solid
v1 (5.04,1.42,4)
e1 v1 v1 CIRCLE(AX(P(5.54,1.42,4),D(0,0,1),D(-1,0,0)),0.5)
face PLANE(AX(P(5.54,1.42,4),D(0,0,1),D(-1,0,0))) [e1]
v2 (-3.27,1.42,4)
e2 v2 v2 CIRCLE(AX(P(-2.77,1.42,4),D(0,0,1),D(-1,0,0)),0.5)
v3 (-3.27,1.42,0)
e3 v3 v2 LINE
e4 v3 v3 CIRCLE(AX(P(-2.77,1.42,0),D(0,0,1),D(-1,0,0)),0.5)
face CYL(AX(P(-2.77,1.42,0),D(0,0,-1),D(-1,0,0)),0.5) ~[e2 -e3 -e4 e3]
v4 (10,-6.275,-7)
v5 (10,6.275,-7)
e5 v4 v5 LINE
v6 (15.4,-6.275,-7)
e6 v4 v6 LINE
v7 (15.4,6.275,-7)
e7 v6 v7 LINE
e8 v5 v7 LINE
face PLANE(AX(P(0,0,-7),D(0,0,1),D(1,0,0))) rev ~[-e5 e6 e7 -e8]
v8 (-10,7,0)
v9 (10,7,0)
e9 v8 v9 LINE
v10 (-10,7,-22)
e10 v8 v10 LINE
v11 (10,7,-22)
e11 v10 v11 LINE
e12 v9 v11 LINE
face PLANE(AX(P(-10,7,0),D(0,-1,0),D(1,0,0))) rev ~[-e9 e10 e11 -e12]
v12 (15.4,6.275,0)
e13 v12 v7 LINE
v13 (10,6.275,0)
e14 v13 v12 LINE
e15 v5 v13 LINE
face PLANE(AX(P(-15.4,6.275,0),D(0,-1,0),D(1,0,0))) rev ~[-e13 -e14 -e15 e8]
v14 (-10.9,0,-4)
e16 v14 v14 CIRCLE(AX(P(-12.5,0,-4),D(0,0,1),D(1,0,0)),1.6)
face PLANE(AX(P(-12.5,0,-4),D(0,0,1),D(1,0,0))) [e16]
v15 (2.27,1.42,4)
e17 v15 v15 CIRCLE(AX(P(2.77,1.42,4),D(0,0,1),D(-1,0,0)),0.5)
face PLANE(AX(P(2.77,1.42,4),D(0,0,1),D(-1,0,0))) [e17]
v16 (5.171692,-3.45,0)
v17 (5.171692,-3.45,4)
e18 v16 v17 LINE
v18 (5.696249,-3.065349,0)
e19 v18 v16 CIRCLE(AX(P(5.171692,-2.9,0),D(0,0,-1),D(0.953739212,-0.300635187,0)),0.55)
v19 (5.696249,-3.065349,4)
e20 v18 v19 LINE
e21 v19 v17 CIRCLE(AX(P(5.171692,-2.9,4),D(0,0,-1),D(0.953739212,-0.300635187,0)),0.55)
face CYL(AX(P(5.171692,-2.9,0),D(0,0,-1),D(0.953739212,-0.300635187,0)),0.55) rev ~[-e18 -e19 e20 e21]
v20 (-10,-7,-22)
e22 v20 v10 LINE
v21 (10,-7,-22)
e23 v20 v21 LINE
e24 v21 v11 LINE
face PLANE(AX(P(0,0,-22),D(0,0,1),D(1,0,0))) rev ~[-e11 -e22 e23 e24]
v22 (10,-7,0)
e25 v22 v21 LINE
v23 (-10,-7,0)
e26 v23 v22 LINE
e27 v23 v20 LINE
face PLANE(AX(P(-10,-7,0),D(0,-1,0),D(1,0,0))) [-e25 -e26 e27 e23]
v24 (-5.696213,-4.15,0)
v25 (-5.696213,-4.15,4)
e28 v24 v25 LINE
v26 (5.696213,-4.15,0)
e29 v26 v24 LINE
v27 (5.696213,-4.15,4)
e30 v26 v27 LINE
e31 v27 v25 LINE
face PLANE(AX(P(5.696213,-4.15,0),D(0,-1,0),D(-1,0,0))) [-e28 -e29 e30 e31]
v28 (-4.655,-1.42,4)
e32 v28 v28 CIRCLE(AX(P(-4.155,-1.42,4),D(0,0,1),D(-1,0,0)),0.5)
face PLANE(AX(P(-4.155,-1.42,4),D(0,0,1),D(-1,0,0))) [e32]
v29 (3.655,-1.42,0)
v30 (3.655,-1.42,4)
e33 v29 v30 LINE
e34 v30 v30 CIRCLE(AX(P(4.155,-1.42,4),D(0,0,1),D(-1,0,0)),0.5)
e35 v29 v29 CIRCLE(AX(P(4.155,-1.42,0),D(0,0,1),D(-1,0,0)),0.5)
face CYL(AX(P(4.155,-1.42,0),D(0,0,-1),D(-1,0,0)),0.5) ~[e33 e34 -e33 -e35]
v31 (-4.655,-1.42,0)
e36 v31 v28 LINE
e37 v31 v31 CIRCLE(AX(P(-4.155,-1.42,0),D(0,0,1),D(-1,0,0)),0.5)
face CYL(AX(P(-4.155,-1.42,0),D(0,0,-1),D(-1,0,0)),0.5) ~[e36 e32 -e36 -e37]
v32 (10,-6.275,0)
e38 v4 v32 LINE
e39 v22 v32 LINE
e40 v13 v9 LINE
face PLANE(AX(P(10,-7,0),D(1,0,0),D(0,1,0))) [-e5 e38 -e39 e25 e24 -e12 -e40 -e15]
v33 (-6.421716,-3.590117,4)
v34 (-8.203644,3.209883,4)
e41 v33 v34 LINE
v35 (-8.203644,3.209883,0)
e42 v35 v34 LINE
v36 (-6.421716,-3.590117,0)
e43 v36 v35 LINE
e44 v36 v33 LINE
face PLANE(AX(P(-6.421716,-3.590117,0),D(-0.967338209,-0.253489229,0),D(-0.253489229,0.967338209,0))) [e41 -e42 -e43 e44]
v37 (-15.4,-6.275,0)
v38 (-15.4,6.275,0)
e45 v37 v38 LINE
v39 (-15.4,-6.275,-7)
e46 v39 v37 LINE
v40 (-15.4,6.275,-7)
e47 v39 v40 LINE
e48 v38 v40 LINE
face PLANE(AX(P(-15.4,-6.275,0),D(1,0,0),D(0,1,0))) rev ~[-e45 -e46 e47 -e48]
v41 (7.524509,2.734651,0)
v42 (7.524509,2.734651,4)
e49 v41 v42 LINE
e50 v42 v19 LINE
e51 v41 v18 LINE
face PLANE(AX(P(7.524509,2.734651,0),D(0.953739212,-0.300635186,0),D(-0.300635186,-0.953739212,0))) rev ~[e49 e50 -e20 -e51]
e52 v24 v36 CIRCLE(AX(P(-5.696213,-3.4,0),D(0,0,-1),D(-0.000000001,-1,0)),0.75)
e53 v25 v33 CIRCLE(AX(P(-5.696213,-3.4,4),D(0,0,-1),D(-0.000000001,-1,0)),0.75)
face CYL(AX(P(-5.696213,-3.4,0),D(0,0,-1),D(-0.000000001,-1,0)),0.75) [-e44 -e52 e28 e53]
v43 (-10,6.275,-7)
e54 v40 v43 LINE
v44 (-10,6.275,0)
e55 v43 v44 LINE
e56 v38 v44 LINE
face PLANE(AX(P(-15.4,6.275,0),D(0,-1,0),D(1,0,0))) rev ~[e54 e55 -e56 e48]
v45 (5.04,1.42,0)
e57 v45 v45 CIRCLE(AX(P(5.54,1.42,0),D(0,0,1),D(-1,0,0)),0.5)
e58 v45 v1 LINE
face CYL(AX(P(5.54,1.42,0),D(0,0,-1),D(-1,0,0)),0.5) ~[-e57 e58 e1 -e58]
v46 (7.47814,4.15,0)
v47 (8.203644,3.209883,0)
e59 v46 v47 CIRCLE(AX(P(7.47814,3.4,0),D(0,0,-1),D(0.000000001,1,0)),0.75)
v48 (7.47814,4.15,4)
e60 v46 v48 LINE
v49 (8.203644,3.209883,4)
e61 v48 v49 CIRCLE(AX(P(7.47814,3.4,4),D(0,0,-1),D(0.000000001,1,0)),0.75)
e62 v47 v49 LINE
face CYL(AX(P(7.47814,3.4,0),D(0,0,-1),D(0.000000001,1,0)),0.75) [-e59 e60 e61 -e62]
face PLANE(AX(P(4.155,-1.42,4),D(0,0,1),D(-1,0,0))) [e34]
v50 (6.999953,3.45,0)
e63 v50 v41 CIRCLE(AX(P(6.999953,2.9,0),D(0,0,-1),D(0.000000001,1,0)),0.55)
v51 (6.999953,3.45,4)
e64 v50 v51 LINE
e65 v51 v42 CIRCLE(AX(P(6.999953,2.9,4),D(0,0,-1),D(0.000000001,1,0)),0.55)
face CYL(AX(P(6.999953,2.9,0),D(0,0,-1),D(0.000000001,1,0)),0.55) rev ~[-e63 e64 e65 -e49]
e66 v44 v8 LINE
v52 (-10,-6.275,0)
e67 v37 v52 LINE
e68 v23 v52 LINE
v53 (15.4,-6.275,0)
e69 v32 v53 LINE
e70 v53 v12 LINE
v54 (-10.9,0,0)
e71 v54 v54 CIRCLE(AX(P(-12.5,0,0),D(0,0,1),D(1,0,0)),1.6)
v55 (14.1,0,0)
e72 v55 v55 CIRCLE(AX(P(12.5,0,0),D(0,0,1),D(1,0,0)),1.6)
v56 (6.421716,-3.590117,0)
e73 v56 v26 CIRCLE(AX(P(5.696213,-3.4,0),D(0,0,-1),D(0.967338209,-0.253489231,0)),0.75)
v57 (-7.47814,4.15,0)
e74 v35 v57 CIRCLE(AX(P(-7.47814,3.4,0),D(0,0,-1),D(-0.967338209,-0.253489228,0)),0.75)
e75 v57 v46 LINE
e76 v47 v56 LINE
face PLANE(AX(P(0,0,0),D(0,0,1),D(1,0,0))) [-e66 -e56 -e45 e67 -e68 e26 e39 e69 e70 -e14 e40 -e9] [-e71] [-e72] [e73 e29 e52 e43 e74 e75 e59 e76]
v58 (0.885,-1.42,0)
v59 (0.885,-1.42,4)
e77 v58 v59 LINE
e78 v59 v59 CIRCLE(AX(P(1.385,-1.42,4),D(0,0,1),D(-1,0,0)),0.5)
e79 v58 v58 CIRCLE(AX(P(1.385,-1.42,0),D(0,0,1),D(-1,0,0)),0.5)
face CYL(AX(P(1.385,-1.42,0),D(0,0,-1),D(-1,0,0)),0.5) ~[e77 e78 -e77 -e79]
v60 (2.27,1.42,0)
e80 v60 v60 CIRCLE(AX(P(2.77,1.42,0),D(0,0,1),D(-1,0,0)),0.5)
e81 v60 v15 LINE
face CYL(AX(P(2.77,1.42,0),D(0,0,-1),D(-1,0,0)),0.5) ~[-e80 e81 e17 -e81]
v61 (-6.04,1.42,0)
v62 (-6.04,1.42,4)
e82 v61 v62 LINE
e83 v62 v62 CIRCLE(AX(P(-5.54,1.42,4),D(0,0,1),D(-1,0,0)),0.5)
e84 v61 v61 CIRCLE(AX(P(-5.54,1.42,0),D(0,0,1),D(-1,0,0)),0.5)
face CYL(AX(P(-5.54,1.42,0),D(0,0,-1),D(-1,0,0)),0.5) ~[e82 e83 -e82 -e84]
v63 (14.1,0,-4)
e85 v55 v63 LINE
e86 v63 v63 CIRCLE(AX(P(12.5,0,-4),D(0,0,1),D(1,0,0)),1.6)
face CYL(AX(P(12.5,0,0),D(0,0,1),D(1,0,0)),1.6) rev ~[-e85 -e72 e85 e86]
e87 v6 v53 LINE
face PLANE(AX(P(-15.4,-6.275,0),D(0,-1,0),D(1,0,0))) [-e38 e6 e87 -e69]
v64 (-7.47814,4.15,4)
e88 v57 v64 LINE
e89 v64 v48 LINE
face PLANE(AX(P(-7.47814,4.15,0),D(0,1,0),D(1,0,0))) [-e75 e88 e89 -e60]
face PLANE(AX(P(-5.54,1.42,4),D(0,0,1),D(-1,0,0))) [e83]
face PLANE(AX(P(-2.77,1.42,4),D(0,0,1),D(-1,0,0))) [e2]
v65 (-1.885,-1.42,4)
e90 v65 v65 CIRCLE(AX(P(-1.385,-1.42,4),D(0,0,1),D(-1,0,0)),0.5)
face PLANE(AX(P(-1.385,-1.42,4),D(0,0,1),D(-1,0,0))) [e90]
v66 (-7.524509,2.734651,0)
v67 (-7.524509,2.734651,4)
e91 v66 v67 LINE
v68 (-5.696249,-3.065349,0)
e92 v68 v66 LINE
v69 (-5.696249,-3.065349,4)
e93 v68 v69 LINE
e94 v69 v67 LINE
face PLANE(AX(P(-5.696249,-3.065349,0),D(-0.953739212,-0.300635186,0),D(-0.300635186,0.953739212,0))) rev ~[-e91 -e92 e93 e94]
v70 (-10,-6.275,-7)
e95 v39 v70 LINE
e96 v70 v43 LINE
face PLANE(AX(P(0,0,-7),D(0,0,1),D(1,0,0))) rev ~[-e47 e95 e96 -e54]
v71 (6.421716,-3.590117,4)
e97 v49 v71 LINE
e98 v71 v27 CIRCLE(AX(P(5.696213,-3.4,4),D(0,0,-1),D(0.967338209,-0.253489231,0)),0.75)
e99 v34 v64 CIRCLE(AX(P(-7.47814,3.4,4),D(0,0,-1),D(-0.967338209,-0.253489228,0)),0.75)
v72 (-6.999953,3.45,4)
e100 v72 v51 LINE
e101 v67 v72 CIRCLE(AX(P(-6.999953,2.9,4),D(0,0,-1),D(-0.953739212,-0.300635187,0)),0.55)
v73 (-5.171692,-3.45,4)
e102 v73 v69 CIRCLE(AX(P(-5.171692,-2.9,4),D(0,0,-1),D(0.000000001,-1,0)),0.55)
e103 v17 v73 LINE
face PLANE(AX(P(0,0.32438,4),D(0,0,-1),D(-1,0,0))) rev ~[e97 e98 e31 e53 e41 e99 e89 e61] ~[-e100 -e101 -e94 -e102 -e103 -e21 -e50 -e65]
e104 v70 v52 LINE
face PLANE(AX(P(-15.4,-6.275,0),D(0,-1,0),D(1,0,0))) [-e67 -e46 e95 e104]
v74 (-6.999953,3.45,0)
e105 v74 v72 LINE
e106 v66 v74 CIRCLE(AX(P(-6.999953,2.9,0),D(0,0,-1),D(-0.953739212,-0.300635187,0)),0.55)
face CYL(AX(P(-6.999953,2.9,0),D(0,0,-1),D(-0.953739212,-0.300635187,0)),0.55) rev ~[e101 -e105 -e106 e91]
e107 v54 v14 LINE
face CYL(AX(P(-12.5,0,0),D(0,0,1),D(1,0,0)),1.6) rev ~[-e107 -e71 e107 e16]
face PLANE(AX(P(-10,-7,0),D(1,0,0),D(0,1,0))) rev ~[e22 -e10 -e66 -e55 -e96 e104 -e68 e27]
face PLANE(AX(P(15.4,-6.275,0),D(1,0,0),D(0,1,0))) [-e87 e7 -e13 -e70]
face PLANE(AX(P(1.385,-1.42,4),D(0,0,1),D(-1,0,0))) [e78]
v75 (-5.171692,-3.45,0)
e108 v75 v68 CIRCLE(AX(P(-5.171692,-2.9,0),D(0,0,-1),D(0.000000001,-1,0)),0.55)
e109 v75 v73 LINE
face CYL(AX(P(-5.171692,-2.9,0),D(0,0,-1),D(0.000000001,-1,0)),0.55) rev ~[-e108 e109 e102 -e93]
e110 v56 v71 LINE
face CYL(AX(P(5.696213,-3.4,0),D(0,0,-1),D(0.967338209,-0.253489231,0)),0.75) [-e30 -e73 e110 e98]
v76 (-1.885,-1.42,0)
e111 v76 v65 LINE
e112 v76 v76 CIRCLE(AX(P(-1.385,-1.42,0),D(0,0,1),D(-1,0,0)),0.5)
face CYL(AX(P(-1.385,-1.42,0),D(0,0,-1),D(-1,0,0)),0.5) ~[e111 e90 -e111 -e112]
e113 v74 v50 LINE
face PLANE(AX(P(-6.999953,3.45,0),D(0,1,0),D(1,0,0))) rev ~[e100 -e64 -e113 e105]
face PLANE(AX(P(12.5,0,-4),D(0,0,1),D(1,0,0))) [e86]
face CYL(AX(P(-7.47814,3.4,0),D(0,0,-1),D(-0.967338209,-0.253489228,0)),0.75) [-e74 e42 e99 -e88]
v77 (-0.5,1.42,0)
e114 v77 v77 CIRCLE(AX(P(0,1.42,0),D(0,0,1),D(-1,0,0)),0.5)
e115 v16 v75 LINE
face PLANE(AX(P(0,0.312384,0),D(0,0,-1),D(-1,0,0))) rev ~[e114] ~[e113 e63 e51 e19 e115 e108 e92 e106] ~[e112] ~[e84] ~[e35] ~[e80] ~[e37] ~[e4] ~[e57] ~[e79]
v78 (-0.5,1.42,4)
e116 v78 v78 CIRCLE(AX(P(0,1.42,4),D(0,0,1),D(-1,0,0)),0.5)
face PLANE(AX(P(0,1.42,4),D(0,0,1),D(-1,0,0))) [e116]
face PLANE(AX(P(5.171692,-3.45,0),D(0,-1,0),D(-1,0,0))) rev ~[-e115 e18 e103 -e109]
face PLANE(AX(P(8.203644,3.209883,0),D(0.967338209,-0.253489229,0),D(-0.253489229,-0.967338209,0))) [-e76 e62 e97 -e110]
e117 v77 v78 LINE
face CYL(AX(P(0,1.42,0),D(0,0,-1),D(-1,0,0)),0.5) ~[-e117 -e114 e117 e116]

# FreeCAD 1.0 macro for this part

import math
import FreeCAD as App
import Part
import Sketcher
from FreeCAD import Vector


def add_polygon(sketch, points):
    """Adds a closed chain of lines whose ends are joined by coincident constraints."""
    first, n = sketch.GeometryCount, len(points)
    for a, b in zip(points, points[1:] + points[:1]):
        sketch.addGeometry(Part.LineSegment(App.Vector(*a, 0), App.Vector(*b, 0)), False)
    for i in range(n):
        sketch.addConstraint(Sketcher.Constraint("Coincident", first + i, 2, first + (i + 1) % n, 1))

doc = App.newDocument("Part")
body = doc.addObject("PartDesign::Body", "Body")

# Sketch on XY plane
sketch1 = body.newObject("Sketcher::SketchObject", "Sketch")
sketch1.AttachmentSupport = (doc.getObject("XY_Plane"), [""])
sketch1.MapMode = "FlatFace"
add_polygon(sketch1, [(-15, 6), (-15, -6), (15, -6), (15, 6)])  # lines 0-3
sketch1.addConstraint([
    Sketcher.Constraint("Vertical", 0),
    Sketcher.Constraint("Horizontal", 1),
    Sketcher.Constraint("Vertical", 2),
    Sketcher.Constraint("Horizontal", 3),
    Sketcher.Constraint("Symmetric", 0, 2, 2, 2, -1, 1),
    Sketcher.Constraint("DistanceX", 1, 1, 1, 2, 30.8),
    Sketcher.Constraint("DistanceY", 0, 2, 0, 1, 12.55),
])
pad1 = body.newObject("PartDesign::Pad", "Pad")
pad1.Profile = sketch1
pad1.Length = 0.6
pad1.Reversed = True

# Sketch on XY plane
sketch2 = body.newObject("Sketcher::SketchObject", "Sketch001")
sketch2.AttachmentSupport = (doc.getObject("XY_Plane"), [""])
sketch2.MapMode = "FlatFace"
add_polygon(sketch2, [(-15, 6), (-15, -6), (15, -6), (15, 6)])  # lines 0-3
sketch2.addConstraint([
    Sketcher.Constraint("Vertical", 0),
    Sketcher.Constraint("Horizontal", 1),
    Sketcher.Constraint("Vertical", 2),
    Sketcher.Constraint("Horizontal", 3),
    Sketcher.Constraint("Symmetric", 0, 2, 2, 2, -1, 1),
    Sketcher.Constraint("DistanceX", 1, 1, 1, 2, 30.8),
    Sketcher.Constraint("DistanceY", 0, 2, 0, 1, 12.55),
])
pad2 = body.newObject("PartDesign::Pad", "Pad001")
pad2.Profile = sketch2
pad2.Length = 7
pad2.Reversed = True

# Sketch on XY plane
sketch3 = body.newObject("Sketcher::SketchObject", "Sketch002")
sketch3.AttachmentSupport = (doc.getObject("XY_Plane"), [""])
sketch3.MapMode = "FlatFace"
add_polygon(sketch3, [(-10, 7), (-10, -7), (10, -7), (10, 7)])  # lines 0-3
sketch3.addConstraint([
    Sketcher.Constraint("Vertical", 0),
    Sketcher.Constraint("Horizontal", 1),
    Sketcher.Constraint("Vertical", 2),
    Sketcher.Constraint("Horizontal", 3),
    Sketcher.Constraint("Symmetric", 0, 2, 2, 2, -1, 1),
    Sketcher.Constraint("DistanceX", 1, 1, 1, 2, 20.0),
    Sketcher.Constraint("DistanceY", 0, 2, 0, 1, 14.0),
])
pad3 = body.newObject("PartDesign::Pad", "Pad002")
pad3.Profile = sketch3
pad3.Length = 22
pad3.Reversed = True

# Sketch on XY plane
sketch4 = body.newObject("Sketcher::SketchObject", "Sketch003")
sketch4.AttachmentSupport = (doc.getObject("XY_Plane"), [""])
sketch4.MapMode = "FlatFace"
sketch4.addGeometry([
    Part.Circle(Vector(-12.5, 0, 0), Vector(0, 0, 1), 2.5),
    Part.Circle(Vector(12.5, 0, 0), Vector(0, 0, 1), 2.5),
], False)
sketch4.addConstraint([
    Sketcher.Constraint("Equal", 0, 1),
    Sketcher.Constraint("Symmetric", 0, 3, 1, 3, -1, 1),
    Sketcher.Constraint("PointOnObject", 0, 3, -1),
    Sketcher.Constraint("Diameter", 0, 5.0),
    Sketcher.Constraint("DistanceX", 0, 3, 1, 3, 25.0),
])
pad4 = body.newObject("PartDesign::Pad", "Pad003")
pad4.Profile = sketch4
pad4.Length = 3.5
pad4.Reversed = True

# Sketch on XY plane
sketch5 = body.newObject("Sketcher::SketchObject", "Sketch004")
sketch5.AttachmentSupport = (doc.getObject("XY_Plane"), [""])
sketch5.MapMode = "FlatFace"
sketch5.addGeometry([
    Part.LineSegment(Vector(7.5, 4.2, 0), Vector(-7.5, 4.2, 0)),  # 0
    Part.ArcOfCircle(Part.Circle(Vector(-7.5, 3.4, 0), Vector(0, 0, 1), 0.8), math.radians(90), math.radians(195)),  # 1
    Part.LineSegment(Vector(-8.2, 3.2, 0), Vector(-6.4, -3.6, 0)),  # 2
    Part.ArcOfCircle(Part.Circle(Vector(-5.7, -3.4, 0), Vector(0, 0, 1), 0.8), math.radians(-165), math.radians(-90)),  # 3
    Part.LineSegment(Vector(-5.7, -4.2, 0), Vector(5.7, -4.2, 0)),  # 4
    Part.ArcOfCircle(Part.Circle(Vector(5.7, -3.4, 0), Vector(0, 0, 1), 0.8), math.radians(-90), math.radians(-15)),  # 5
    Part.LineSegment(Vector(6.4, -3.6, 0), Vector(8.2, 3.2, 0)),  # 6
    Part.ArcOfCircle(Part.Circle(Vector(7.5, 3.4, 0), Vector(0, 0, 1), 0.8), math.radians(-15), math.radians(90)),  # 7
], False)
sketch5.addConstraint([
    Sketcher.Constraint("Tangent", 0, 2, 1, 1),
    Sketcher.Constraint("Tangent", 1, 2, 2, 1),
    Sketcher.Constraint("Tangent", 2, 2, 3, 1),
    Sketcher.Constraint("Tangent", 3, 2, 4, 1),
    Sketcher.Constraint("Tangent", 4, 2, 5, 1),
    Sketcher.Constraint("Tangent", 5, 2, 6, 1),
    Sketcher.Constraint("Tangent", 6, 2, 7, 1),
    Sketcher.Constraint("Tangent", 7, 2, 0, 1),
    Sketcher.Constraint("Horizontal", 0),
    Sketcher.Constraint("Horizontal", 4),
    Sketcher.Constraint("Equal", 1, 3),
    Sketcher.Constraint("Equal", 3, 5),
    Sketcher.Constraint("Equal", 5, 7),
    Sketcher.Constraint("Symmetric", 2, 2, 5, 2, -2),
    Sketcher.Constraint("Radius", 1, 0.75),
    Sketcher.Constraint("DistanceY", -1, 1, 1, 3, 3.4),
    Sketcher.Constraint("DistanceY", 3, 3, -1, 1, 3.4),
    Sketcher.Constraint("Distance", 2, 7.029599),
    Sketcher.Constraint("DistanceX", 0, 2, 0, 1, 14.956281),
])
pad5 = body.newObject("PartDesign::Pad", "Pad004")
pad5.Profile = sketch5
pad5.Length = 4

# Sketch on XY plane
sketch6 = body.newObject("Sketcher::SketchObject", "Sketch005")
sketch6.AttachmentSupport = (doc.getObject("XY_Plane"), [""])
sketch6.MapMode = "FlatFace"
sketch6.addGeometry([
    Part.LineSegment(Vector(7, 3.5, 0), Vector(-7, 3.5, 0)),  # 0
    Part.ArcOfCircle(Part.Circle(Vector(-7, 2.9, 0), Vector(0, 0, 1), 0.6), math.radians(90), math.radians(197)),  # 1
    Part.LineSegment(Vector(-7.5, 2.7, 0), Vector(-5.7, -3.1, 0)),  # 2
    Part.ArcOfCircle(Part.Circle(Vector(-5.2, -2.9, 0), Vector(0, 0, 1), 0.6), math.radians(-163), math.radians(-90)),  # 3
    Part.LineSegment(Vector(-5.2, -3.5, 0), Vector(5.2, -3.5, 0)),  # 4
    Part.ArcOfCircle(Part.Circle(Vector(5.2, -2.9, 0), Vector(0, 0, 1), 0.6), math.radians(-90), math.radians(-17)),  # 5
    Part.LineSegment(Vector(5.7, -3.1, 0), Vector(7.5, 2.7, 0)),  # 6
    Part.ArcOfCircle(Part.Circle(Vector(7, 2.9, 0), Vector(0, 0, 1), 0.6), math.radians(-17), math.radians(90)),  # 7
], False)
sketch6.addConstraint([
    Sketcher.Constraint("Tangent", 0, 2, 1, 1),
    Sketcher.Constraint("Tangent", 1, 2, 2, 1),
    Sketcher.Constraint("Tangent", 2, 2, 3, 1),
    Sketcher.Constraint("Tangent", 3, 2, 4, 1),
    Sketcher.Constraint("Tangent", 4, 2, 5, 1),
    Sketcher.Constraint("Tangent", 5, 2, 6, 1),
    Sketcher.Constraint("Tangent", 6, 2, 7, 1),
    Sketcher.Constraint("Tangent", 7, 2, 0, 1),
    Sketcher.Constraint("Horizontal", 0),
    Sketcher.Constraint("Horizontal", 4),
    Sketcher.Constraint("Equal", 1, 3),
    Sketcher.Constraint("Equal", 3, 5),
    Sketcher.Constraint("Equal", 5, 7),
    Sketcher.Constraint("Symmetric", 2, 2, 5, 2, -2),
    Sketcher.Constraint("Radius", 1, 0.55),
    Sketcher.Constraint("DistanceY", -1, 1, 1, 3, 2.9),
    Sketcher.Constraint("DistanceY", 3, 3, -1, 1, 2.9),
    Sketcher.Constraint("DistanceX", 1, 2, 5, 3, 12.696201),
    Sketcher.Constraint("DistanceX", 0, 2, 0, 1, 13.999906),
])
pocket1 = body.newObject("PartDesign::Pocket", "Pocket")
pocket1.Profile = sketch6
pocket1.Length = 4
pocket1.Reversed = True

# Sketch on XY plane
sketch7 = body.newObject("Sketcher::SketchObject", "Sketch006")
sketch7.AttachmentSupport = (doc.getObject("XY_Plane"), [""])
sketch7.MapMode = "FlatFace"
sketch7.addGeometry([
    Part.Circle(Vector(-5.5, 1.4, 0), Vector(0, 0, 1), 0.5),  # 0
    Part.Circle(Vector(-2.8, 1.4, 0), Vector(0, 0, 1), 0.5),  # 1
    Part.Circle(Vector(0, 1.4, 0), Vector(0, 0, 1), 0.5),  # 2
    Part.Circle(Vector(2.8, 1.4, 0), Vector(0, 0, 1), 0.5),  # 3
    Part.Circle(Vector(5.5, 1.4, 0), Vector(0, 0, 1), 0.5),  # 4
    Part.Circle(Vector(-4.2, -1.4, 0), Vector(0, 0, 1), 0.5),  # 5
    Part.Circle(Vector(-1.4, -1.4, 0), Vector(0, 0, 1), 0.5),  # 6
    Part.Circle(Vector(1.4, -1.4, 0), Vector(0, 0, 1), 0.5),  # 7
    Part.Circle(Vector(4.2, -1.4, 0), Vector(0, 0, 1), 0.5),  # 8
], False)
sketch7.addConstraint([
    Sketcher.Constraint("Equal", 0, 1),
    Sketcher.Constraint("Equal", 1, 2),
    Sketcher.Constraint("Equal", 2, 3),
    Sketcher.Constraint("Equal", 3, 4),
    Sketcher.Constraint("Equal", 4, 5),
    Sketcher.Constraint("Equal", 5, 6),
    Sketcher.Constraint("Equal", 6, 7),
    Sketcher.Constraint("Equal", 7, 8),
    Sketcher.Constraint("Symmetric", 1, 3, 3, 3, -2),
    Sketcher.Constraint("Symmetric", 0, 3, 4, 3, -2),
    Sketcher.Constraint("Symmetric", 6, 3, 7, 3, -2),
    Sketcher.Constraint("Symmetric", 5, 3, 8, 3, -2),
    Sketcher.Constraint("PointOnObject", 2, 3, -2),
    Sketcher.Constraint("Horizontal", 0, 3, 1, 3),
    Sketcher.Constraint("Horizontal", 1, 3, 2, 3),
    Sketcher.Constraint("Horizontal", 5, 3, 6, 3),
    Sketcher.Constraint("Diameter", 0, 1.0),
    Sketcher.Constraint("DistanceX", 0, 3, -1, 1, 5.54),
    Sketcher.Constraint("DistanceY", -1, 1, 0, 3, 1.42),
    Sketcher.Constraint("DistanceX", 1, 3, -1, 1, 2.77),
    Sketcher.Constraint("DistanceY", 5, 3, -1, 1, 1.42),
    Sketcher.Constraint("DistanceX", 5, 3, 6, 3, 2.77),
    Sketcher.Constraint("DistanceX", 6, 3, 7, 3, 2.77),
])
pad6 = body.newObject("PartDesign::Pad", "Pad005")
pad6.Profile = sketch7
pad6.Length = 4

# Sketch on XY plane
sketch8 = body.newObject("Sketcher::SketchObject", "Sketch007")
sketch8.AttachmentSupport = (doc.getObject("XY_Plane"), [""])
sketch8.MapMode = "FlatFace"
sketch8.addGeometry([
    Part.Circle(Vector(-12.5, 0, 0), Vector(0, 0, 1), 1.6),
    Part.Circle(Vector(12.5, 0, 0), Vector(0, 0, 1), 1.6),
], False)
sketch8.addConstraint([
    Sketcher.Constraint("Equal", 0, 1),
    Sketcher.Constraint("Symmetric", 0, 3, 1, 3, -1, 1),
    Sketcher.Constraint("PointOnObject", 0, 3, -1),
    Sketcher.Constraint("Diameter", 0, 3.2),
    Sketcher.Constraint("DistanceX", 0, 3, 1, 3, 25.0),
])
pocket2 = body.newObject("PartDesign::Pocket", "Pocket001")
pocket2.Profile = sketch8
pocket2.Length = 4

doc.recompute()
